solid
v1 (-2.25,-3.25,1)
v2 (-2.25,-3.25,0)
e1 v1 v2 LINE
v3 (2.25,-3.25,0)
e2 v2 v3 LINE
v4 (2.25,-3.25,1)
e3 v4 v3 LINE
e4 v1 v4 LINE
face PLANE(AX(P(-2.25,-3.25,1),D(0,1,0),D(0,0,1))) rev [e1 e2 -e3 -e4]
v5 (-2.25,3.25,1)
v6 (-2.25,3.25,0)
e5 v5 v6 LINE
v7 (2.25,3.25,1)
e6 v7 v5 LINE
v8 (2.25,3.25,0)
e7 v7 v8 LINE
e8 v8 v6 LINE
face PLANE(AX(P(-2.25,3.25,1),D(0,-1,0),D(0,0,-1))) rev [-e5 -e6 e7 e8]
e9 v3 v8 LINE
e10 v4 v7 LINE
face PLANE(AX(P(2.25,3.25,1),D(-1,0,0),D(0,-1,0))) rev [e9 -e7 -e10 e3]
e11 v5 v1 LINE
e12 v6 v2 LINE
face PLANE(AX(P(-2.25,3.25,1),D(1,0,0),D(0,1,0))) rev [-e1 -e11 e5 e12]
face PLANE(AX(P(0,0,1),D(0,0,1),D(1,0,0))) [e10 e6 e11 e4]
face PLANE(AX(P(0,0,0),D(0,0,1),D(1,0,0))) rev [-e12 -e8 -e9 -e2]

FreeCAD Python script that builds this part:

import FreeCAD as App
import Part
import Sketcher
Q = App.Units.Quantity

doc = App.newDocument("Part")
body = doc.addObject("PartDesign::Body", "Body")

sketch1 = body.newObject("Sketcher::SketchObject", "Sketch")
sketch1.AttachmentSupport = (doc.getObject("XY_Plane"), [""])
sketch1.MapMode = "FlatFace"
sketch1.addGeometry([
    Part.LineSegment(App.Vector(-2.25, 3.25, 0), App.Vector(-2.25, -3.25, 0)),
    Part.LineSegment(App.Vector(-2.25, -3.25, 0), App.Vector(2.25, -3.25, 0)),
    Part.LineSegment(App.Vector(2.25, -3.25, 0), App.Vector(2.25, 3.25, 0)),
    Part.LineSegment(App.Vector(2.25, 3.25, 0), App.Vector(-2.25, 3.25, 0)),
], False)
sketch1.addConstraint([
    Sketcher.Constraint("Coincident", 0, 2, 1, 1),
    Sketcher.Constraint("Coincident", 1, 2, 2, 1),
    Sketcher.Constraint("Coincident", 2, 2, 3, 1),
    Sketcher.Constraint("Coincident", 3, 2, 0, 1),
    Sketcher.Constraint("Vertical", 0),
    Sketcher.Constraint("Horizontal", 1),
    Sketcher.Constraint("Vertical", 2),
    Sketcher.Constraint("Horizontal", 3),
    Sketcher.Constraint("Symmetric", 0, 2, 2, 2, -1, 1),
    Sketcher.Constraint("DistanceX", 1, 1, 1, 2, Q("4.5 mm")),
    Sketcher.Constraint("DistanceY", 0, 2, 0, 1, Q("6.5 mm")),
])
pad1 = body.newObject("PartDesign::Pad", "Pad")
pad1.Profile = sketch1
pad1.Length = 1

doc.recompute()
